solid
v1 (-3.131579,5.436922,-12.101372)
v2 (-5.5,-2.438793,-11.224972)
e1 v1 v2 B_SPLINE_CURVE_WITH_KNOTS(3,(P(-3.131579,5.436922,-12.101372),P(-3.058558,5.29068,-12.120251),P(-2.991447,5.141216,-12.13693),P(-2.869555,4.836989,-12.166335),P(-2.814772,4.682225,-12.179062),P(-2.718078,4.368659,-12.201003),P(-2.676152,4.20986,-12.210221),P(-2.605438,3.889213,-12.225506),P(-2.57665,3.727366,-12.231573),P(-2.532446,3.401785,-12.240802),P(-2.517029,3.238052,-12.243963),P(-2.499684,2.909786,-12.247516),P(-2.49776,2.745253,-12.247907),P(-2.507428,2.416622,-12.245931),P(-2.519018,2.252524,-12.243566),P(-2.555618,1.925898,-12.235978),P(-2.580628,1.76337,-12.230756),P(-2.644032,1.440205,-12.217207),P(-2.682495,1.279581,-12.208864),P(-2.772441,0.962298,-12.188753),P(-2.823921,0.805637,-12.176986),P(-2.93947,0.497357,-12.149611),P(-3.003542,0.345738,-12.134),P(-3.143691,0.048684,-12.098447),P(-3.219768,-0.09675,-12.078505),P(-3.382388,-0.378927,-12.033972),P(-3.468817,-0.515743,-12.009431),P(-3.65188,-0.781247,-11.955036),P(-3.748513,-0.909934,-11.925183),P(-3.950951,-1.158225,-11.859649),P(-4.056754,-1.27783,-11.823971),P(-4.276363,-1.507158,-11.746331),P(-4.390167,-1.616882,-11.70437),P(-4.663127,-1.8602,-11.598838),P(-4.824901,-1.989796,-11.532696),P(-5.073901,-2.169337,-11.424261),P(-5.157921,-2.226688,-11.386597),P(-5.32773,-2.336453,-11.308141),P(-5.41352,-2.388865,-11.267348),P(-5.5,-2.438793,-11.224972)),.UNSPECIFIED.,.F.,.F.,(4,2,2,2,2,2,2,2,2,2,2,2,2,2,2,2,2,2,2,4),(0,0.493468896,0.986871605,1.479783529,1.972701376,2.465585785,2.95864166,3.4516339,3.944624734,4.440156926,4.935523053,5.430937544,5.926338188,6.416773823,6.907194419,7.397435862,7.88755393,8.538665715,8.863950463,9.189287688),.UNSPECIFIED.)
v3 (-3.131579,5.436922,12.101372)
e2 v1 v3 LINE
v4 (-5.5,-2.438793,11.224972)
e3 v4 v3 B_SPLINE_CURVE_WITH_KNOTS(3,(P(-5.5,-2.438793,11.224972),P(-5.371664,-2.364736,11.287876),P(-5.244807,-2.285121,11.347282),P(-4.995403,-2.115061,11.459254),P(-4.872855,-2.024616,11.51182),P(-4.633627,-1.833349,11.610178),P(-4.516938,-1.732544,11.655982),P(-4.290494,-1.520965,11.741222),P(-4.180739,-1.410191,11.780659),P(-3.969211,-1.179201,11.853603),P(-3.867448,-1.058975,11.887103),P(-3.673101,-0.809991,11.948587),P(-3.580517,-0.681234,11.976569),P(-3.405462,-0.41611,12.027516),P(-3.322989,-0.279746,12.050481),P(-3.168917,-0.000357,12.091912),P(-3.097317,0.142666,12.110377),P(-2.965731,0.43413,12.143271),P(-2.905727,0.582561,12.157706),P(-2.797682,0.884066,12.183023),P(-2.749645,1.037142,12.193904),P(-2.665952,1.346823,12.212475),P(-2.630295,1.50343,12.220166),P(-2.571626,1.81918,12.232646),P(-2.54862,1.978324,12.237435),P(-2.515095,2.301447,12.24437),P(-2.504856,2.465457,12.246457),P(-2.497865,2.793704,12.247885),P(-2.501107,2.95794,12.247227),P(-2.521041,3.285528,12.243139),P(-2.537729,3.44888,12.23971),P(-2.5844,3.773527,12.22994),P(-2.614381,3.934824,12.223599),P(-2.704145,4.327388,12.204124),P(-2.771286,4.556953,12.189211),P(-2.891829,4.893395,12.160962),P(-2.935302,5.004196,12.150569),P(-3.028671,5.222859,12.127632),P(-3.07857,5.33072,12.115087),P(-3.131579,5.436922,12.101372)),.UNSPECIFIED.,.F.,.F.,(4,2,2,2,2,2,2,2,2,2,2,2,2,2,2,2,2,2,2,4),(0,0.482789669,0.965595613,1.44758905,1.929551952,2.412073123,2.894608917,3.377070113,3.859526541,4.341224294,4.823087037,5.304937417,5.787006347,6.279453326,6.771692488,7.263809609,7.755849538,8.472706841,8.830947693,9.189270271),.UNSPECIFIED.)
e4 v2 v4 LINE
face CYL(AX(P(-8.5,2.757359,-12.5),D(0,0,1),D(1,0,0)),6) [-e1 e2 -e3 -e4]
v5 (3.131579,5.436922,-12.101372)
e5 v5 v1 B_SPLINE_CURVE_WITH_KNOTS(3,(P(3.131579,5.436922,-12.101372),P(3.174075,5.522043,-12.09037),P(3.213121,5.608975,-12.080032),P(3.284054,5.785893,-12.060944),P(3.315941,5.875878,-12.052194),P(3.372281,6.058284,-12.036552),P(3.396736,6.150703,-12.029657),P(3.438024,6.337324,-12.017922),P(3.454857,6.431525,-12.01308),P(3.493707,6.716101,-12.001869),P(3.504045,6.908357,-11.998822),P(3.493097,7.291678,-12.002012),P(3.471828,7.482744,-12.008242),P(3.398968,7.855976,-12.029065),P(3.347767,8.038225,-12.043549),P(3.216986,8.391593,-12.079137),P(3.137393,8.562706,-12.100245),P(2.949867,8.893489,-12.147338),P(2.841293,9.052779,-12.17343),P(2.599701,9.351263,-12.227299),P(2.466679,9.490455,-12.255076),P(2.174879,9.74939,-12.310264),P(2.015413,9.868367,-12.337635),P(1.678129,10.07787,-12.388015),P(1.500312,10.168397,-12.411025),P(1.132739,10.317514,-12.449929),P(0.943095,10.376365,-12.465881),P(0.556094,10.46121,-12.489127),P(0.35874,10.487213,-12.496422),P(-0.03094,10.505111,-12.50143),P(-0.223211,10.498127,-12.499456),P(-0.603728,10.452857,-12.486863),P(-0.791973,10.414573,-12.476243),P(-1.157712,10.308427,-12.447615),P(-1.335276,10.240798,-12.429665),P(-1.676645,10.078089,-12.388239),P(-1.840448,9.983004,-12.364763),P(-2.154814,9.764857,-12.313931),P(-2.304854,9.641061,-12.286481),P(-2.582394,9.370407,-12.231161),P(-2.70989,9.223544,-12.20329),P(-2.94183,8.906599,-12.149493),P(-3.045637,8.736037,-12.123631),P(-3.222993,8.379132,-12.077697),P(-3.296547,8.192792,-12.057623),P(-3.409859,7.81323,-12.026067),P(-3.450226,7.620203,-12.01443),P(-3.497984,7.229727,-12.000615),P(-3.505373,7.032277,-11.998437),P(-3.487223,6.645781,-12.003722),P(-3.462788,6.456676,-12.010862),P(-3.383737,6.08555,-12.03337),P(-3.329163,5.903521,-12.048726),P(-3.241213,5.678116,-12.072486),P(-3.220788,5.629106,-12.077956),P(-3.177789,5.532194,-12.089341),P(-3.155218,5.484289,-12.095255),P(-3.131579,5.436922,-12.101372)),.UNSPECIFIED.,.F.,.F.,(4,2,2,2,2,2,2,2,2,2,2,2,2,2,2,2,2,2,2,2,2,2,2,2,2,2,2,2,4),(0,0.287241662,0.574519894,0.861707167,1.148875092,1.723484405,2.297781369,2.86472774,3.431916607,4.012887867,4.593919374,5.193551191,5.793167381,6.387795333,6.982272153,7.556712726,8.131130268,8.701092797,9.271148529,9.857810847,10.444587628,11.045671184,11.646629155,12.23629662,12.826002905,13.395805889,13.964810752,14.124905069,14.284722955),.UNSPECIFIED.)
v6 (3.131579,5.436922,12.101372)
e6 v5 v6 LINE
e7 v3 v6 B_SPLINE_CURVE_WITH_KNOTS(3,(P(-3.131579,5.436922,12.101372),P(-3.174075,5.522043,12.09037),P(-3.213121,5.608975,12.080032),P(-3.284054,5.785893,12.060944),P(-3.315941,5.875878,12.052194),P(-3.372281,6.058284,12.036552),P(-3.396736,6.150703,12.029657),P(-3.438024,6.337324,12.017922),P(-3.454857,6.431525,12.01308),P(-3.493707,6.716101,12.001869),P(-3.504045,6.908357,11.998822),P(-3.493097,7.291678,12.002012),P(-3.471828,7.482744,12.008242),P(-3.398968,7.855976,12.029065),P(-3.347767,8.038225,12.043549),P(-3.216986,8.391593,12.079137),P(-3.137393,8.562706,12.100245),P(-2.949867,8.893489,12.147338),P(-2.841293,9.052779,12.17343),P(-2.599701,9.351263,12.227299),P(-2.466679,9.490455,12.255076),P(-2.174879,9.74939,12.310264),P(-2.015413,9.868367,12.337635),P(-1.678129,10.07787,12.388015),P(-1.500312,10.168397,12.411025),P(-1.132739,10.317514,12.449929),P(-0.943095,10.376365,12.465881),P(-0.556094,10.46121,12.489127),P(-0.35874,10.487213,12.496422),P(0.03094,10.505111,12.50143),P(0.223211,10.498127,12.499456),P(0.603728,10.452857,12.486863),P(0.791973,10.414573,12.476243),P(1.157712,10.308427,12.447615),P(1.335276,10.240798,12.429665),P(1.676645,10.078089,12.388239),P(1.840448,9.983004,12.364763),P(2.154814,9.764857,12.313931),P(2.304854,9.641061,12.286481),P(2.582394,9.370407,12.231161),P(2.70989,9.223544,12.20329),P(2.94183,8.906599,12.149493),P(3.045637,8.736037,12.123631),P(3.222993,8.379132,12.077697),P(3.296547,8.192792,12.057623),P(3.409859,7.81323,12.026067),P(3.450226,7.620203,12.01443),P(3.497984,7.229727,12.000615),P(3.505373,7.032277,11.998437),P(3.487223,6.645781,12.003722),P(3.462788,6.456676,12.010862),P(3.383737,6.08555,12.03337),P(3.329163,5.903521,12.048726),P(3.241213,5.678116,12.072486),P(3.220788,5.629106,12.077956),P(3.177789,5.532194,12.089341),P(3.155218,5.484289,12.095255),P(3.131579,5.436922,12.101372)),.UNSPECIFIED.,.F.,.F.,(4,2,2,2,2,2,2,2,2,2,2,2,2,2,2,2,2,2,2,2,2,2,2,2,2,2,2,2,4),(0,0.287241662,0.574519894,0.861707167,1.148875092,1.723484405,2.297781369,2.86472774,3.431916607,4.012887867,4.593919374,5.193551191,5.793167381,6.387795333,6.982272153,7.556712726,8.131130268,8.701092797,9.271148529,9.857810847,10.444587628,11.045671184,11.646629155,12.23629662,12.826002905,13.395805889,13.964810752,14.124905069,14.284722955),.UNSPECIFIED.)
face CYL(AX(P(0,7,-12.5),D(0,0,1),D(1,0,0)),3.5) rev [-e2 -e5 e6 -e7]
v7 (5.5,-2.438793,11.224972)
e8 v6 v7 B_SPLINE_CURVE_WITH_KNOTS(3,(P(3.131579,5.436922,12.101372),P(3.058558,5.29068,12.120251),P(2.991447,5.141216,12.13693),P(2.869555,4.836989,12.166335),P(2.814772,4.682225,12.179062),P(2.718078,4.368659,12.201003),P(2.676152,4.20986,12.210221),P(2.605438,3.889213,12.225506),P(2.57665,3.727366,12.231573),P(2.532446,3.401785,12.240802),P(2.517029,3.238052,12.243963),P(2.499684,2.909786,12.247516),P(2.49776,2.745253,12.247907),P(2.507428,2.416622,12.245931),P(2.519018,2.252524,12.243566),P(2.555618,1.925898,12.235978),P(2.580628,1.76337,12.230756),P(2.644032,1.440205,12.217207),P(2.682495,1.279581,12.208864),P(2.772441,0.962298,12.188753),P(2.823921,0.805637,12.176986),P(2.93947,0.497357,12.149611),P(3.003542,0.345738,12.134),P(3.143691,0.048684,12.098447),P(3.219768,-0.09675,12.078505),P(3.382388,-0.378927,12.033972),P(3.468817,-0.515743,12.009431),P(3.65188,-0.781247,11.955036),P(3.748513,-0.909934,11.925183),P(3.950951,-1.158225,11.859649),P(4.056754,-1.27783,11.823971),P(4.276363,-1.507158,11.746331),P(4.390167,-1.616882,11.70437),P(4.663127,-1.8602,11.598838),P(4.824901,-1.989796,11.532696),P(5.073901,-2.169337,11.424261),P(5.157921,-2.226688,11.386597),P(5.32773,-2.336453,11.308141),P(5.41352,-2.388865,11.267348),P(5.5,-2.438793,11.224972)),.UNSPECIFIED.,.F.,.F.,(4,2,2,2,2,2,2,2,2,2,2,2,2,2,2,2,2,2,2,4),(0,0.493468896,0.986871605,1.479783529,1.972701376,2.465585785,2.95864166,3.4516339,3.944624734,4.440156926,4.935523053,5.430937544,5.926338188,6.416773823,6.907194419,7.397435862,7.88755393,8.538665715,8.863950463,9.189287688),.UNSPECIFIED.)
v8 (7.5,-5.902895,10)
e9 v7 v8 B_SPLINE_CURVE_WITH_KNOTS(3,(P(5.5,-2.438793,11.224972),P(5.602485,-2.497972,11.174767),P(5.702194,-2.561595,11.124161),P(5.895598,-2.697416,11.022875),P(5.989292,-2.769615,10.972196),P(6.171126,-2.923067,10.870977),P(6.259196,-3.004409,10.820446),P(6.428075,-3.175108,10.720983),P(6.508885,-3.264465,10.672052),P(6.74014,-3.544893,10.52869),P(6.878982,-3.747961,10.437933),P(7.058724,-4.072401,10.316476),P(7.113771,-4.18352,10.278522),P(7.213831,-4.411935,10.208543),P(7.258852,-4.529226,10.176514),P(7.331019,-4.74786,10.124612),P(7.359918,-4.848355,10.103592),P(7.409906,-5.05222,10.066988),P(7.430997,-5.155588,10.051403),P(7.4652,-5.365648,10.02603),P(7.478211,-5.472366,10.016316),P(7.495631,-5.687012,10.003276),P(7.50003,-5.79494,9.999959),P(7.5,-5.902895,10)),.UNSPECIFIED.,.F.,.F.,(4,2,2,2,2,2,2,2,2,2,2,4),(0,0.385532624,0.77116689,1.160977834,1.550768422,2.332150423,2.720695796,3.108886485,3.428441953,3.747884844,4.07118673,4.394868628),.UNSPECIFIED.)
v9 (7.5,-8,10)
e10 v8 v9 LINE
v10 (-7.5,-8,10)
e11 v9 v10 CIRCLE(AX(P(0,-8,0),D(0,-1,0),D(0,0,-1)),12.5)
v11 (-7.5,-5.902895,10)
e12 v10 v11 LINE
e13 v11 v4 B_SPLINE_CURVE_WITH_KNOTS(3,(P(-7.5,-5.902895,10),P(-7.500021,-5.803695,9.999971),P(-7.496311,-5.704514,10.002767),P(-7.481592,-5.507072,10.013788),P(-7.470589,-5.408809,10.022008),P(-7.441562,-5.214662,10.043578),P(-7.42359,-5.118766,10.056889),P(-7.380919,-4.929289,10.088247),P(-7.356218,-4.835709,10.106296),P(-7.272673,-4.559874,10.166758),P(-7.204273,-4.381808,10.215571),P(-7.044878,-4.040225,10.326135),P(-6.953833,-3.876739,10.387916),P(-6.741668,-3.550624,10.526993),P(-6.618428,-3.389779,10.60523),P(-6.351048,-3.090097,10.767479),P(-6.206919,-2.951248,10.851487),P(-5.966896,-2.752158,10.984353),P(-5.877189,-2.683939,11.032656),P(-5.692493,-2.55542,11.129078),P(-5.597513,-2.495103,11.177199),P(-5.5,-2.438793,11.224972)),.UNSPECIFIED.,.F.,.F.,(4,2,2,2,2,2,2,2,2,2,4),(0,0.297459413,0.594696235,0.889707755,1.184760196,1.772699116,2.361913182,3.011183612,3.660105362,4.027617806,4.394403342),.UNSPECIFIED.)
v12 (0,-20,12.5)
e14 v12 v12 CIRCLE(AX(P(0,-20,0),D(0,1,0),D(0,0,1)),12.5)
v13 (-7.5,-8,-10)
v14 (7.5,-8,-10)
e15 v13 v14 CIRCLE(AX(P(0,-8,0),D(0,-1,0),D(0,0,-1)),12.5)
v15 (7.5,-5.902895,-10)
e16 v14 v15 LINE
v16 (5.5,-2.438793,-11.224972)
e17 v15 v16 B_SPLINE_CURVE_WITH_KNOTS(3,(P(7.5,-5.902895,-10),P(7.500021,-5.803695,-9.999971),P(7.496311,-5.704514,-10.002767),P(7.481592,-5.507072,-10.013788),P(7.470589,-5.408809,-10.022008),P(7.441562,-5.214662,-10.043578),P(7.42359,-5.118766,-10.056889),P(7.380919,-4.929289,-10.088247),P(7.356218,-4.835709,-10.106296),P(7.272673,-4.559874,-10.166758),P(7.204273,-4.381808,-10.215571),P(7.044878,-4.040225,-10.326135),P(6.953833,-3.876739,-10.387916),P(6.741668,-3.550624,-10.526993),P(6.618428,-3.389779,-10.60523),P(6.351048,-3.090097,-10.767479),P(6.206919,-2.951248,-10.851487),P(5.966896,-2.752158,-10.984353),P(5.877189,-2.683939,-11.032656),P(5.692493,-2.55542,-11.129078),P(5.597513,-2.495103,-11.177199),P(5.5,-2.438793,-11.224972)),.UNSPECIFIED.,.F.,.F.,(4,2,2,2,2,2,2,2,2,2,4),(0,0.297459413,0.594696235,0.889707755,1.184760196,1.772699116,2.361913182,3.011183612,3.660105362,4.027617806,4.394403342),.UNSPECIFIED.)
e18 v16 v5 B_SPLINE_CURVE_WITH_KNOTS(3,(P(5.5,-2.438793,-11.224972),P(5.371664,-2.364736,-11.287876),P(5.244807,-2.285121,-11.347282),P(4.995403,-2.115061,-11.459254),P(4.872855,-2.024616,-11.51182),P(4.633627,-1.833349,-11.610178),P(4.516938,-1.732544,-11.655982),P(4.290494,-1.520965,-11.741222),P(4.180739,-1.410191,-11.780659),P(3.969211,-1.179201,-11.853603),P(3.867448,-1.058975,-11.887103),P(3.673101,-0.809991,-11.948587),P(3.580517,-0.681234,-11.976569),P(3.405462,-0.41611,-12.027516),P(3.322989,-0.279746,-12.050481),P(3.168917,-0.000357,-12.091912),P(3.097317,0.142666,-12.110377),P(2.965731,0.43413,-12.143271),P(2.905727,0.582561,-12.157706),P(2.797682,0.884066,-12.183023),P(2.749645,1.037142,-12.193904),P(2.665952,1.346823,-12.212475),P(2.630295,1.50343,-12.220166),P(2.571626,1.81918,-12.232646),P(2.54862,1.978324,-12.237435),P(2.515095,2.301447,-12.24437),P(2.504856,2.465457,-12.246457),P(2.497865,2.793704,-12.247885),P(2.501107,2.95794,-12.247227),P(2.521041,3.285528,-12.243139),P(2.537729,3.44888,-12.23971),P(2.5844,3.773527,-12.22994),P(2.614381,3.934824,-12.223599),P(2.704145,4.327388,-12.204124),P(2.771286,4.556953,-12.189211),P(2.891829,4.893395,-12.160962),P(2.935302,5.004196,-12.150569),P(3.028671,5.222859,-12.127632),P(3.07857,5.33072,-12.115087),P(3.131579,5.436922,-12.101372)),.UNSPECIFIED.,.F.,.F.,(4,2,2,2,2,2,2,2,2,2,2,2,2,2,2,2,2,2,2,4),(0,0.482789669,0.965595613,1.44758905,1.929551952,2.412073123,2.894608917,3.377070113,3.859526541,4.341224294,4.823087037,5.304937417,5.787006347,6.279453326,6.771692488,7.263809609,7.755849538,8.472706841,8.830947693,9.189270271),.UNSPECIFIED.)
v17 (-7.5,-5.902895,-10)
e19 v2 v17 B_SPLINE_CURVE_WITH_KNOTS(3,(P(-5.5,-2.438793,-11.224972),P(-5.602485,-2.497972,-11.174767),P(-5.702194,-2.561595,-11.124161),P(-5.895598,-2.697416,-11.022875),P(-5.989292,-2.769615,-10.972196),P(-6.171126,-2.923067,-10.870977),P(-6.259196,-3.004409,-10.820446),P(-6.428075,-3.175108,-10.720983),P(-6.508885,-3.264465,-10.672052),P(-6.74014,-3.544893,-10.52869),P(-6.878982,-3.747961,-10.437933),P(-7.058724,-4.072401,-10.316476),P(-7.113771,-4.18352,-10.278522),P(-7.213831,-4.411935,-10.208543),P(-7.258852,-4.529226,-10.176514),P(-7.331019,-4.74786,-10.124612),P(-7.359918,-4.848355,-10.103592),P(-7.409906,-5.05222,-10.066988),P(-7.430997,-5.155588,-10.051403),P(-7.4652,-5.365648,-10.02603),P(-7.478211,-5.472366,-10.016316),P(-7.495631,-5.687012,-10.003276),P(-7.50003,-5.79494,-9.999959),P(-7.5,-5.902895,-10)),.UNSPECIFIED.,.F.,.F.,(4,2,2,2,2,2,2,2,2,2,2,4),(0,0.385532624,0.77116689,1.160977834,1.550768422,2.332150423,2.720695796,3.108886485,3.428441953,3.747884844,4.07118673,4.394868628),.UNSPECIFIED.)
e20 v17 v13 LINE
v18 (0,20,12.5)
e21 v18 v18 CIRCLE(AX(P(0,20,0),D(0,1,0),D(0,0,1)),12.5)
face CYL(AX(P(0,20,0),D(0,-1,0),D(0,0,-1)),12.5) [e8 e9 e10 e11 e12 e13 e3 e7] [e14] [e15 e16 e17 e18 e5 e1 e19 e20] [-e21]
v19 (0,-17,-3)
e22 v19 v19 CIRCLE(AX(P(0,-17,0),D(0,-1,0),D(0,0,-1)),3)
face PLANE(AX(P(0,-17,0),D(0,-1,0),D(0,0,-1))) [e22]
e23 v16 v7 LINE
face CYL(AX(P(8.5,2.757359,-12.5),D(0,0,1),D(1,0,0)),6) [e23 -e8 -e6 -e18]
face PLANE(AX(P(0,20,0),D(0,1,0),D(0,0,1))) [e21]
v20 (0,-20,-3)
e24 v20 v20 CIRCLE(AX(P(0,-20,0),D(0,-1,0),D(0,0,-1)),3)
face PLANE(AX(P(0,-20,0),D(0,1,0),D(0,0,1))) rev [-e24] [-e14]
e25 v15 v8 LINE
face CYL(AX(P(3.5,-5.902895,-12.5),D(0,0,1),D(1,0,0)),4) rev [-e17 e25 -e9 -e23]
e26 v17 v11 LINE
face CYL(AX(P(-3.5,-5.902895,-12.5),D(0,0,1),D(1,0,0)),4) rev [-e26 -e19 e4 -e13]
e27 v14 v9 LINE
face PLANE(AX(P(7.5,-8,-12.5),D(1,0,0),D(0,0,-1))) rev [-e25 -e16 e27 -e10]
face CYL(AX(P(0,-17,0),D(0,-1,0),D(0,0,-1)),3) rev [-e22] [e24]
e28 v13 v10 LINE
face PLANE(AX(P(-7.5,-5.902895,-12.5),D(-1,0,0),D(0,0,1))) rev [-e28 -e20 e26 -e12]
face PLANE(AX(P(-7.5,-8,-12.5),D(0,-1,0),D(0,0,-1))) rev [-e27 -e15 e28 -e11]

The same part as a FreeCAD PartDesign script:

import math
import FreeCAD as App
import Part
import Sketcher
from FreeCAD import Vector
Q = App.Units.Quantity

doc = App.newDocument("Part")
body = doc.addObject("PartDesign::Body", "Body")

sketch1 = doc.addObject("Sketcher::SketchObject", "Sketch")
body.addObject(sketch1)
sketch1.AttachmentSupport = (doc.XZ_Plane, [""])
sketch1.MapMode = "FlatFace"
sketch1.addGeometry(Part.Circle(Vector(0, 0, 0), Vector(0, 0, 1), 12), False)
sketch1.addConstraint(Sketcher.Constraint("Coincident", 0, 3, -1, 1))
sketch1.addConstraint(Sketcher.Constraint("Diameter", 0, Q("25 mm")))
pad1 = doc.addObject("PartDesign::Pad", "Pad")
body.addObject(pad1)
pad1.Profile = sketch1
pad1.Length = 40
pad1.Midplane = True

sketch2 = doc.addObject("Sketcher::SketchObject", "Sketch001")
body.addObject(sketch2)
sketch2.AttachmentSupport = (doc.XY_Plane, [""])
sketch2.MapMode = "FlatFace"
sketch2.addGeometry(Part.LineSegment(Vector(-7.5, -8, 0), Vector(7.5, -8, 0)), False)
sketch2.addGeometry(Part.LineSegment(Vector(7.5, -8, 0), Vector(7.5, -5.9, 0)), False)
sketch2.addGeometry(Part.ArcOfCircle(Part.Circle(Vector(3.5, -5.9, 0), Vector(0, 0, 1), 4), math.radians(0), math.radians(60)), False)
sketch2.addGeometry(Part.ArcOfCircle(Part.Circle(Vector(8.5, 2.8, 0), Vector(0, 0, 1), 6), math.radians(153), math.radians(240)), False)
sketch2.addGeometry(Part.ArcOfCircle(Part.Circle(Vector(0, 7, 0), Vector(0, 0, 1), 3.5), math.radians(-27), math.radians(207)), False)
sketch2.addGeometry(Part.ArcOfCircle(Part.Circle(Vector(-8.5, 2.8, 0), Vector(0, 0, 1), 6), math.radians(-60), math.radians(27)), False)
sketch2.addGeometry(Part.ArcOfCircle(Part.Circle(Vector(-3.5, -5.9, 0), Vector(0, 0, 1), 4), math.radians(120), math.radians(180)), False)
sketch2.addGeometry(Part.LineSegment(Vector(-7.5, -5.9, 0), Vector(-7.5, -8, 0)), False)
sketch2.addConstraint(Sketcher.Constraint("Coincident", 0, 2, 1, 1))
sketch2.addConstraint(Sketcher.Constraint("Tangent", 1, 2, 2, 1))
sketch2.addConstraint(Sketcher.Constraint("Tangent", 2, 2, 3, 2))
sketch2.addConstraint(Sketcher.Constraint("Tangent", 3, 1, 4, 1))
sketch2.addConstraint(Sketcher.Constraint("Tangent", 4, 2, 5, 2))
sketch2.addConstraint(Sketcher.Constraint("Tangent", 5, 1, 6, 1))
sketch2.addConstraint(Sketcher.Constraint("Tangent", 6, 2, 7, 1))
sketch2.addConstraint(Sketcher.Constraint("Coincident", 7, 2, 0, 1))
sketch2.addConstraint(Sketcher.Constraint("Horizontal", 0))
sketch2.addConstraint(Sketcher.Constraint("Vertical", 1))
sketch2.addConstraint(Sketcher.Constraint("Vertical", 7))
sketch2.addConstraint(Sketcher.Constraint("Equal", 3, 5))
sketch2.addConstraint(Sketcher.Constraint("Equal", 2, 6))
sketch2.addConstraint(Sketcher.Constraint("Symmetric", 3, 3, 5, 3, -2))
sketch2.addConstraint(Sketcher.Constraint("Horizontal", 2, 3, 6, 3))
sketch2.addConstraint(Sketcher.Constraint("Radius", 2, Q("4 mm")))
sketch2.addConstraint(Sketcher.Constraint("Radius", 3, Q("6 mm")))
sketch2.addConstraint(Sketcher.Constraint("Radius", 4, Q("3.5 mm")))
sketch2.addConstraint(Sketcher.Constraint("DistanceX", 0, 1, 0, 2, Q("15 mm")))
sketch2.addConstraint(Sketcher.Constraint("DistanceY", -1, 1, 4, 3, Q("7 mm")))
sketch2.addConstraint(Sketcher.Constraint("DistanceY", 0, 2, -1, 1, Q("8 mm")))
sketch2.addConstraint(Sketcher.Constraint("DistanceX", 2, 3, 3, 3, Q("5 mm")))
pocket1 = doc.addObject("PartDesign::Pocket", "Pocket")
body.addObject(pocket1)
pocket1.Profile = sketch2
pocket1.Type = "ThroughAll"
pocket1.Midplane = True

sketch3 = doc.addObject("Sketcher::SketchObject", "Sketch002")
body.addObject(sketch3)
sketch3.AttachmentSupport = (doc.XZ_Plane, [""])
sketch3.MapMode = "FlatFace"
sketch3.AttachmentOffset = App.Placement(Vector(0, 0, 20), App.Rotation())
sketch3.addGeometry(Part.Circle(Vector(0, 0, 0), Vector(0, 0, 1), 3), False)
sketch3.addConstraint(Sketcher.Constraint("Coincident", 0, 3, -1, 1))
sketch3.addConstraint(Sketcher.Constraint("Diameter", 0, Q("6 mm")))
pocket2 = doc.addObject("PartDesign::Pocket", "Pocket001")
body.addObject(pocket2)
pocket2.Profile = sketch3
pocket2.Length = 3

doc.recompute()
